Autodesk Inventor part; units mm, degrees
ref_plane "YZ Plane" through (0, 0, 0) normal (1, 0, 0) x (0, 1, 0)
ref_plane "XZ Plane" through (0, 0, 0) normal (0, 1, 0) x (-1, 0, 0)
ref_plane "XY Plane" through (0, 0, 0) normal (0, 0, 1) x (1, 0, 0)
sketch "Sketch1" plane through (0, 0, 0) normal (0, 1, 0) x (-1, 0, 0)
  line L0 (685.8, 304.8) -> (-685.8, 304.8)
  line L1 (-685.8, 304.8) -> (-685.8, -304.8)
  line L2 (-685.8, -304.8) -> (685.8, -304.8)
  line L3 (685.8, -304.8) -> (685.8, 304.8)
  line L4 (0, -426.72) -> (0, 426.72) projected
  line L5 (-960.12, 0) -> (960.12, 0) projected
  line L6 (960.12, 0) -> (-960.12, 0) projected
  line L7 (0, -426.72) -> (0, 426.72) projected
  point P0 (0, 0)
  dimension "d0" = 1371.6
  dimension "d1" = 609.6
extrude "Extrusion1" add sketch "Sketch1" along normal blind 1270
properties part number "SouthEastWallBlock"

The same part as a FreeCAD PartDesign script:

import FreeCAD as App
import Part
import Sketcher
from FreeCAD import Vector
Q = App.Units.Quantity


def add_polygon(sketch, points):
    """Adds a closed chain of lines whose ends are joined by coincident constraints."""
    first, n = sketch.GeometryCount, len(points)
    for a, b in zip(points, points[1:] + points[:1]):
        sketch.addGeometry(Part.LineSegment(App.Vector(*a, 0), App.Vector(*b, 0)), False)
    for i in range(n):
        sketch.addConstraint(Sketcher.Constraint("Coincident", first + i, 2, first + (i + 1) % n, 1))

doc = App.newDocument("Part")
body = doc.addObject("PartDesign::Body", "Body")

# Sketch on XZ plane
sketch1 = body.newObject("Sketcher::SketchObject", "Sketch")
sketch1.AttachmentSupport = (doc.getObject("XZ_Plane"), [""])
sketch1.MapMode = "FlatFace"
add_polygon(sketch1, [(-686, 305), (686, 305), (686, -305), (-686, -305)])  # lines 0-3
sketch1.addConstraint(Sketcher.Constraint("Horizontal", 0))
sketch1.addConstraint(Sketcher.Constraint("Vertical", 1))
sketch1.addConstraint(Sketcher.Constraint("Horizontal", 2))
sketch1.addConstraint(Sketcher.Constraint("Vertical", 3))
sketch1.addConstraint(Sketcher.Constraint("Symmetric", 0, 2, 2, 2, -1, 1))
sketch1.addConstraint(Sketcher.Constraint("DistanceX", 0, 1, 0, 2, Q("54 in")))
sketch1.addConstraint(Sketcher.Constraint("DistanceY", 1, 2, 1, 1, Q("24 in")))
pad1 = body.newObject("PartDesign::Pad", "Pad")
pad1.Profile = sketch1
pad1.Length = Q("50 in")
pad1.Reversed = True

doc.recompute()
